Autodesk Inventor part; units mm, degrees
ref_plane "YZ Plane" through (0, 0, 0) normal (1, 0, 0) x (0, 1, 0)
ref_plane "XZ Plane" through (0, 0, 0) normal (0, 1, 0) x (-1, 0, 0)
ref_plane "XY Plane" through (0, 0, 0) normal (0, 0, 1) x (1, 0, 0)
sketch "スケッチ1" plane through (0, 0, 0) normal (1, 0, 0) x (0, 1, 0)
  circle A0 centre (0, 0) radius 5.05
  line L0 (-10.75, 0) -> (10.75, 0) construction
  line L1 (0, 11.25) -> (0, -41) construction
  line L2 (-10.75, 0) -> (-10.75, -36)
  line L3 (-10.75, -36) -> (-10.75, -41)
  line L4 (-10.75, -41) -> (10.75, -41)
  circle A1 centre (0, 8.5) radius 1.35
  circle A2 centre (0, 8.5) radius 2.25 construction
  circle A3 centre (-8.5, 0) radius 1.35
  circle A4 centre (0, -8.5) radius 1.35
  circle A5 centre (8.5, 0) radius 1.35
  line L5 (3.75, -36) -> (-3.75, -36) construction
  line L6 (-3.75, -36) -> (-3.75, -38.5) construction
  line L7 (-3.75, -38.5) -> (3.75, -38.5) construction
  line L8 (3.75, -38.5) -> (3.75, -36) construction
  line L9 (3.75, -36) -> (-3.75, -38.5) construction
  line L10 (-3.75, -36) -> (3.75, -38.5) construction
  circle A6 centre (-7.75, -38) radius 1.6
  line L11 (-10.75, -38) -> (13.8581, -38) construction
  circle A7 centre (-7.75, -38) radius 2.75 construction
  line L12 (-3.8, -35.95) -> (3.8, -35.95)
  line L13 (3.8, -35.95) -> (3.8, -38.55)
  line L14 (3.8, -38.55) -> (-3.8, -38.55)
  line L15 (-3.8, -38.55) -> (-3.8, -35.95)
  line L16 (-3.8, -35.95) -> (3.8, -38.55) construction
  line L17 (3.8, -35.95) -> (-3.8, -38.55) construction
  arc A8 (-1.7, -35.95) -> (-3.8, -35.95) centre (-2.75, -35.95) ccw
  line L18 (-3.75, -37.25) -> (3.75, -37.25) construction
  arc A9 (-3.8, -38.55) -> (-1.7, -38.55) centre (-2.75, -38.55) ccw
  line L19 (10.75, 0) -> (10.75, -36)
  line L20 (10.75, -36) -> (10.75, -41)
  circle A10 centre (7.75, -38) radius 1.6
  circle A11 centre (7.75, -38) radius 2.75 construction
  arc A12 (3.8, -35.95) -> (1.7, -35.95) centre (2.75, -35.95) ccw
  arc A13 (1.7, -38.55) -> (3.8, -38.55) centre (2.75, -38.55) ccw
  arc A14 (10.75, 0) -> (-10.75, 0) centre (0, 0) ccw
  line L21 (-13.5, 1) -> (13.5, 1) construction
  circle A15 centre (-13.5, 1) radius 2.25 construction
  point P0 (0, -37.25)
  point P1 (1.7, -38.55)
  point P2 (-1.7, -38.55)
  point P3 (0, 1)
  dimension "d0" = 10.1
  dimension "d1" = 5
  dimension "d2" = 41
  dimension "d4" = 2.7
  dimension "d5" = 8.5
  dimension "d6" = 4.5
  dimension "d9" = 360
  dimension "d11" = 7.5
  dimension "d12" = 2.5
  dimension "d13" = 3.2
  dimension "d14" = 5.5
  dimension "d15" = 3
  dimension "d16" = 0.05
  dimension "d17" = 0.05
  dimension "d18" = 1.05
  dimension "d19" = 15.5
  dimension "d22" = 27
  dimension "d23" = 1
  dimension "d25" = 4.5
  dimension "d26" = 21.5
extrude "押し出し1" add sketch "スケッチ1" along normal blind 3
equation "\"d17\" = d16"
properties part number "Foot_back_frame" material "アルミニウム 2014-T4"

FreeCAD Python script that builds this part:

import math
import FreeCAD as App
import Part
import Sketcher

doc = App.newDocument("Part")
params = doc.addObject("Spreadsheet::Sheet", "Params")
for row, (alias, value) in enumerate([
    ("sketch1_diameter", "3.2 mm"),
    ("sketch1_diameter2", "2.7 mm"),
    ("sketch1_diameter3", "10.1 mm"),
    ("sketch1_height", "41 mm"),
    ("sketch1_radius", "10.75 mm"),
    ("pad1_length", "3 mm"),
], start=1):
    params.set(f"A{row}", alias)
    params.set(f"B{row}", "=" + value)
    params.setAlias(f"B{row}", alias)

body = doc.addObject("PartDesign::Body", "Body")

# Sketch on YZ plane
sketch1 = body.newObject("Sketcher::SketchObject", "Sketch")
sketch1.AttachmentSupport = (doc.getObject("YZ_Plane"), [""])
sketch1.MapMode = "FlatFace"
sketch1.addGeometry(Part.ArcOfCircle(Part.Circle(App.Vector(0, 0, 0), App.Vector(0, 0, 1), 10.75), math.radians(0), math.radians(180)), False)
sketch1.addGeometry(Part.LineSegment(App.Vector(-10.75, 0, 0), App.Vector(-10.75, -41, 0)), False)
sketch1.addGeometry(Part.LineSegment(App.Vector(-10.75, -41, 0), App.Vector(10.75, -41, 0)), False)
sketch1.addGeometry(Part.LineSegment(App.Vector(10.75, -41, 0), App.Vector(10.75, 0, 0)), False)
sketch1.addGeometry(Part.Circle(App.Vector(-7.75, -38, 0), App.Vector(0, 0, 1), 1.6), False)
sketch1.addGeometry(Part.LineSegment(App.Vector(-3.8, -38.55, 0), App.Vector(-3.8, -35.95, 0)), False)
sketch1.addGeometry(Part.ArcOfCircle(Part.Circle(App.Vector(-2.75, -35.95, 0), App.Vector(0, 0, 1), 1.05), math.radians(0), math.radians(180)), False)
sketch1.addGeometry(Part.LineSegment(App.Vector(-1.7, -35.95, 0), App.Vector(1.7, -35.95, 0)), False)
sketch1.addGeometry(Part.ArcOfCircle(Part.Circle(App.Vector(2.75, -35.95, 0), App.Vector(0, 0, 1), 1.05), math.radians(0), math.radians(180)), False)
sketch1.addGeometry(Part.LineSegment(App.Vector(3.8, -35.95, 0), App.Vector(3.8, -38.55, 0)), False)
sketch1.addGeometry(Part.ArcOfCircle(Part.Circle(App.Vector(2.75, -38.55, 0), App.Vector(0, 0, 1), 1.05), math.radians(180), math.radians(360)), False)
sketch1.addGeometry(Part.LineSegment(App.Vector(1.7, -38.55, 0), App.Vector(-1.7, -38.55, 0)), False)
sketch1.addGeometry(Part.ArcOfCircle(Part.Circle(App.Vector(-2.75, -38.55, 0), App.Vector(0, 0, 1), 1.05), math.radians(180), math.radians(360)), False)
sketch1.addGeometry(Part.Circle(App.Vector(7.75, -38, 0), App.Vector(0, 0, 1), 1.6), False)
sketch1.addGeometry(Part.Circle(App.Vector(-8.5, 0, 0), App.Vector(0, 0, 1), 1.35), False)
sketch1.addGeometry(Part.Circle(App.Vector(0, -8.5, 0), App.Vector(0, 0, 1), 1.35), False)
sketch1.addGeometry(Part.Circle(App.Vector(0, 0, 0), App.Vector(0, 0, 1), 5.05), False)
sketch1.addGeometry(Part.Circle(App.Vector(0, 8.5, 0), App.Vector(0, 0, 1), 1.35), False)
sketch1.addGeometry(Part.Circle(App.Vector(8.5, 0, 0), App.Vector(0, 0, 1), 1.35), False)
sketch1.addConstraint(Sketcher.Constraint("Tangent", 0, 2, 1, 1))
sketch1.addConstraint(Sketcher.Constraint("Coincident", 1, 2, 2, 1))
sketch1.addConstraint(Sketcher.Constraint("Coincident", 2, 2, 3, 1))
sketch1.addConstraint(Sketcher.Constraint("Tangent", 3, 2, 0, 1))
sketch1.addConstraint(Sketcher.Constraint("Tangent", 5, 2, 6, 2))
sketch1.addConstraint(Sketcher.Constraint("Coincident", 6, 1, 7, 1))
sketch1.addConstraint(Sketcher.Constraint("Coincident", 7, 2, 8, 2))
sketch1.addConstraint(Sketcher.Constraint("Tangent", 8, 1, 9, 1))
sketch1.addConstraint(Sketcher.Constraint("Tangent", 9, 2, 10, 2))
sketch1.addConstraint(Sketcher.Constraint("Coincident", 10, 1, 11, 1))
sketch1.addConstraint(Sketcher.Constraint("Coincident", 11, 2, 12, 2))
sketch1.addConstraint(Sketcher.Constraint("Tangent", 12, 1, 5, 1))
sketch1.addConstraint(Sketcher.Constraint("Vertical", 1))
sketch1.addConstraint(Sketcher.Constraint("Horizontal", 2))
sketch1.addConstraint(Sketcher.Constraint("Vertical", 3))
sketch1.addConstraint(Sketcher.Constraint("Vertical", 5))
sketch1.addConstraint(Sketcher.Constraint("Horizontal", 7))
sketch1.addConstraint(Sketcher.Constraint("Vertical", 9))
sketch1.addConstraint(Sketcher.Constraint("Horizontal", 11))
sketch1.addConstraint(Sketcher.Constraint("Coincident", 0, 3, -1, 1))
sketch1.addConstraint(Sketcher.Constraint("Coincident", 16, 3, -1, 1))
sketch1.addConstraint(Sketcher.Constraint("Equal", 6, 8))
sketch1.addConstraint(Sketcher.Constraint("Equal", 8, 10))
sketch1.addConstraint(Sketcher.Constraint("Equal", 10, 12))
sketch1.addConstraint(Sketcher.Constraint("Equal", 4, 13))
sketch1.addConstraint(Sketcher.Constraint("Equal", 14, 15))
sketch1.addConstraint(Sketcher.Constraint("Equal", 15, 17))
sketch1.addConstraint(Sketcher.Constraint("Equal", 17, 18))
sketch1.addConstraint(Sketcher.Constraint("Symmetric", 15, 3, 17, 3, -1, 1))
sketch1.addConstraint(Sketcher.Constraint("Symmetric", 14, 3, 18, 3, -1, 1))
sketch1.addConstraint(Sketcher.Constraint("Symmetric", 6, 3, 8, 3, -2))
sketch1.addConstraint(Sketcher.Constraint("Symmetric", 4, 3, 13, 3, -2))
sketch1.addConstraint(Sketcher.Constraint("PointOnObject", 14, 3, -1))
sketch1.addConstraint(Sketcher.Constraint("PointOnObject", 15, 3, -2))
sketch1.addConstraint(Sketcher.Constraint("Horizontal", 10, 3, 12, 3))
sketch1.addConstraint(Sketcher.Constraint("Horizontal", 5, 2, 6, 1))
sketch1.addConstraint(Sketcher.Constraint("Horizontal", 9, 2, 10, 1))
sketch1.addConstraint(Sketcher.Constraint("Diameter", 4, 3.2))
sketch1.addConstraint(Sketcher.Constraint("Diameter", 14, 2.7))
sketch1.addConstraint(Sketcher.Constraint("Diameter", 16, 10.1))
sketch1.addConstraint(Sketcher.Constraint("DistanceY", 1, 2, 1, 1, 41.0))
sketch1.addConstraint(Sketcher.Constraint("Radius", 0, 10.75))
sketch1.addConstraint(Sketcher.Constraint("Radius", 6, 1.05))
sketch1.addConstraint(Sketcher.Constraint("DistanceX", 4, 3, 6, 3, 5.0))
sketch1.addConstraint(Sketcher.Constraint("DistanceX", 1, 2, 4, 3, 3.0))
sketch1.addConstraint(Sketcher.Constraint("DistanceY", 1, 2, 4, 3, 3.0))
sketch1.addConstraint(Sketcher.Constraint("DistanceX", 14, 3, -1, 1, 8.5))
sketch1.addConstraint(Sketcher.Constraint("DistanceY", 15, 3, -1, 1, 8.5))
sketch1.addConstraint(Sketcher.Constraint("DistanceY", 5, 1, 5, 2, 2.6))
sketch1.addConstraint(Sketcher.Constraint("DistanceY", 6, 3, -1, 1, 35.95))
sketch1.setExpression("Constraints[37]", "Params.sketch1_diameter")
sketch1.setExpression("Constraints[38]", "Params.sketch1_diameter2")
sketch1.setExpression("Constraints[39]", "Params.sketch1_diameter3")
sketch1.setExpression("Constraints[40]", "Params.sketch1_height")
sketch1.setExpression("Constraints[41]", "Params.sketch1_radius")
pad1 = body.newObject("PartDesign::Pad", "Pad")
pad1.Profile = sketch1
pad1.setExpression("Length", "Params.pad1_length")

doc.recompute()
